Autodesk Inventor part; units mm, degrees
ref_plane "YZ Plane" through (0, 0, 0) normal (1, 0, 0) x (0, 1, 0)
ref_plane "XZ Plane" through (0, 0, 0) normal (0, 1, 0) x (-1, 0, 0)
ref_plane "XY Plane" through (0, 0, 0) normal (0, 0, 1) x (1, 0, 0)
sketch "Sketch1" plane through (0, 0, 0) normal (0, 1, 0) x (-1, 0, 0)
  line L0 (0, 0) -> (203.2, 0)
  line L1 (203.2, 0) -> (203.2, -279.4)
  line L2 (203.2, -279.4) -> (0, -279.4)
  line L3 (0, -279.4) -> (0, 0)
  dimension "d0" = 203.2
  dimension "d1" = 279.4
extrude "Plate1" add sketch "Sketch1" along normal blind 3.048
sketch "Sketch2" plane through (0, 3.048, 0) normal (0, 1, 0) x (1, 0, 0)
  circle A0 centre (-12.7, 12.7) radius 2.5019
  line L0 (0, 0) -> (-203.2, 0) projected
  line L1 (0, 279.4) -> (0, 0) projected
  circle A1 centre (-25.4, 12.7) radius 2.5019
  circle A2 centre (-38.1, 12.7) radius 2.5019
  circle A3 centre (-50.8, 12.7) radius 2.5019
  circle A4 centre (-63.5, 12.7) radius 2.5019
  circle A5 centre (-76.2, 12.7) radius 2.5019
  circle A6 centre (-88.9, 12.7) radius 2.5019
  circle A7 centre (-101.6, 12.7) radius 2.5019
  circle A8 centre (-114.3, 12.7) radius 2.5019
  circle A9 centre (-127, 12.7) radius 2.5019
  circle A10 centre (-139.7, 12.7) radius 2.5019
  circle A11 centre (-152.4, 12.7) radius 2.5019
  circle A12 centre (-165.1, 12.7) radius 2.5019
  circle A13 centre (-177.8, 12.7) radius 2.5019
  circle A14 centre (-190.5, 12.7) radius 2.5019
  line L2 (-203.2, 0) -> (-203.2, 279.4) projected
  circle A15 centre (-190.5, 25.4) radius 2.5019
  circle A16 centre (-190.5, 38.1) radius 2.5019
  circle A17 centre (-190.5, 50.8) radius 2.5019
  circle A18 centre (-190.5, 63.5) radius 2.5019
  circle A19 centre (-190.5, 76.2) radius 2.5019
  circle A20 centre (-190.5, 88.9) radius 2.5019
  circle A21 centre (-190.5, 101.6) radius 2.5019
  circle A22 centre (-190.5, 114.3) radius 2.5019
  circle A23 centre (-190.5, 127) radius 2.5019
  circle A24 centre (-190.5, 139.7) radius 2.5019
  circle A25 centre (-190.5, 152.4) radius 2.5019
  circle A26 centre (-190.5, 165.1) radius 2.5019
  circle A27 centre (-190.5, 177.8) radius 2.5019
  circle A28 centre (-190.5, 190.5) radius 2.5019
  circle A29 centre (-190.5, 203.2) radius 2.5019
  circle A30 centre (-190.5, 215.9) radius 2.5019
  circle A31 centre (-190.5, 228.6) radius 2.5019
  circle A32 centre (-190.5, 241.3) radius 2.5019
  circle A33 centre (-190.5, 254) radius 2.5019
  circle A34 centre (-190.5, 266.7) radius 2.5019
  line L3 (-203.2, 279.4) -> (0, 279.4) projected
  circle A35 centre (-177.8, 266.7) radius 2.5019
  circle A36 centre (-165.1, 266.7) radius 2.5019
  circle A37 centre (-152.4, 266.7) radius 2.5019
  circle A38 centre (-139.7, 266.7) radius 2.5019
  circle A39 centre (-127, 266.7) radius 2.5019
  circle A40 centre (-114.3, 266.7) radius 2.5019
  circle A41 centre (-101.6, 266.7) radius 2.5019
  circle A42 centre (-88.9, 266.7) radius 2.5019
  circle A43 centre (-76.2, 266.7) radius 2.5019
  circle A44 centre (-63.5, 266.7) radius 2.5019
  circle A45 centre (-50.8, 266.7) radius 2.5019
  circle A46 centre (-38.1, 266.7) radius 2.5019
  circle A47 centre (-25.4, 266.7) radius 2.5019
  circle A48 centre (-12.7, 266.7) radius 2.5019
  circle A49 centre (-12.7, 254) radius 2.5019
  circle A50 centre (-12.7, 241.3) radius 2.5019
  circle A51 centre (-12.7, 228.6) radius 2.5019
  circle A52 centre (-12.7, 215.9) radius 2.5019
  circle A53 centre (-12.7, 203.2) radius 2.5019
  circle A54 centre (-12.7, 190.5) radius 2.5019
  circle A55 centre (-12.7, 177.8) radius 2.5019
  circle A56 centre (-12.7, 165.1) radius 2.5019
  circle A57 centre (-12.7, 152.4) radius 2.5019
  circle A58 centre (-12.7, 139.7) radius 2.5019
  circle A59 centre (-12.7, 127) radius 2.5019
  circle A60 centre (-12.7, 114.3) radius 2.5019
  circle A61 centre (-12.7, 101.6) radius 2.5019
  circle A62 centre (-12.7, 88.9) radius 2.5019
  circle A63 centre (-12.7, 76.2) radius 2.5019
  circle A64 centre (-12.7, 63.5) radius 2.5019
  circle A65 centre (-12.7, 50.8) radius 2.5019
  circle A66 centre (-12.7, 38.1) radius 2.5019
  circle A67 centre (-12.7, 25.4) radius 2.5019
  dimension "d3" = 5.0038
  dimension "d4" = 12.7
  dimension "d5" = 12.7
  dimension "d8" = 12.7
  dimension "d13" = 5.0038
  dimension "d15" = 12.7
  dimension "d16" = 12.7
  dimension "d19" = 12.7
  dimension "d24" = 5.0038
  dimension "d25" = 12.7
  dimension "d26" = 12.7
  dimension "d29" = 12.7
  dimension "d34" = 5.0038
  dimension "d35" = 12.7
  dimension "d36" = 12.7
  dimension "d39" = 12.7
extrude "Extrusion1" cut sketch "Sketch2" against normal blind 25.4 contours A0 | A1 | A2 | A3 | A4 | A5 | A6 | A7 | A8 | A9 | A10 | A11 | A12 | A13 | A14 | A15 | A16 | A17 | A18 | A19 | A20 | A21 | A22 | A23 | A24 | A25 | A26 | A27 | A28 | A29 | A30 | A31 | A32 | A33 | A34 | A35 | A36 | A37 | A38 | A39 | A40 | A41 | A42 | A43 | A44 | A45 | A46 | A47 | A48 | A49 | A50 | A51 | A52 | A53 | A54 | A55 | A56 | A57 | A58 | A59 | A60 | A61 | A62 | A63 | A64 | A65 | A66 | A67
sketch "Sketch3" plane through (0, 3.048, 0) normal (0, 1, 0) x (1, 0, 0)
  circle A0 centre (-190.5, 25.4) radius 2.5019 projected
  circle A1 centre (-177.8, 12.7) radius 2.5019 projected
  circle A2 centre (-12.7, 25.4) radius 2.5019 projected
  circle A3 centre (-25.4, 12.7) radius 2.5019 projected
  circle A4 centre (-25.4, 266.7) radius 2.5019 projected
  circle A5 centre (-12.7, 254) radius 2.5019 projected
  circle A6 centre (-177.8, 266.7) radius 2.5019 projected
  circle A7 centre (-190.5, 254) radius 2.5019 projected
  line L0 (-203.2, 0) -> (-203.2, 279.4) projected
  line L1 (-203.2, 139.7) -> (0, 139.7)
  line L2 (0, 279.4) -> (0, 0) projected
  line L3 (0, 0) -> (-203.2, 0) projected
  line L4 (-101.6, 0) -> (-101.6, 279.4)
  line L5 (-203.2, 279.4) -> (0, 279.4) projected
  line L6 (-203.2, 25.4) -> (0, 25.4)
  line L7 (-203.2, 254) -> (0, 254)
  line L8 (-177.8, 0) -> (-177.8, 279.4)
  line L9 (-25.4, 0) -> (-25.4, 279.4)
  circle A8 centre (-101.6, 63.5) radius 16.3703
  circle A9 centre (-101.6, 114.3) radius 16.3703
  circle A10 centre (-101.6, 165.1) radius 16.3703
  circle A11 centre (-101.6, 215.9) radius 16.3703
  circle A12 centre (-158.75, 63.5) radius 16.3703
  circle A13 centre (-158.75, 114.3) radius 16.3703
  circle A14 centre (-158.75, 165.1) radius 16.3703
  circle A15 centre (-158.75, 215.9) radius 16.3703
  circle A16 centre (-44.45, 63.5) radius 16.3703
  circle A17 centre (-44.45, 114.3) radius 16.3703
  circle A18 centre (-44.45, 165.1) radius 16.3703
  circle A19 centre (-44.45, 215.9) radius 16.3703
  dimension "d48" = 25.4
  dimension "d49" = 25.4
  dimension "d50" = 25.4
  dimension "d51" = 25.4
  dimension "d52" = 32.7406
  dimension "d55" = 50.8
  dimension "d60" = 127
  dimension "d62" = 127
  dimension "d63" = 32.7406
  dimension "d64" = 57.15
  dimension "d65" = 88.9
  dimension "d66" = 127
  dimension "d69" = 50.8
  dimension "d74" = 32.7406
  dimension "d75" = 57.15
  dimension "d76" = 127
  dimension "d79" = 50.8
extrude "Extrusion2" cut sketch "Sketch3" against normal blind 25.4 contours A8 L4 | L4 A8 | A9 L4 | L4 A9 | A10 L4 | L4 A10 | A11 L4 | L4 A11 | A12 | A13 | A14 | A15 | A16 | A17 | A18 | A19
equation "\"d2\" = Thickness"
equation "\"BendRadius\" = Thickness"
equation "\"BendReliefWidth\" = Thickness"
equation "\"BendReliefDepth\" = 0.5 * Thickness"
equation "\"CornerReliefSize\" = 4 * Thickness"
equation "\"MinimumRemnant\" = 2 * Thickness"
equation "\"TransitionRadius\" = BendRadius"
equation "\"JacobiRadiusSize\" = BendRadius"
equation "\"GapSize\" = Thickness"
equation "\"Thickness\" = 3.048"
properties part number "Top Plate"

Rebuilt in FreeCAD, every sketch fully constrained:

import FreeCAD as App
import Part
import Sketcher
Q = App.Units.Quantity


def add_polygon(sketch, points):
    """Adds a closed chain of lines whose ends are joined by coincident constraints."""
    first, n = sketch.GeometryCount, len(points)
    for a, b in zip(points, points[1:] + points[:1]):
        sketch.addGeometry(Part.LineSegment(App.Vector(*a, 0), App.Vector(*b, 0)), False)
    for i in range(n):
        sketch.addConstraint(Sketcher.Constraint("Coincident", first + i, 2, first + (i + 1) % n, 1))

doc = App.newDocument("Part")
body = doc.addObject("PartDesign::Body", "Body")

sketch1 = body.newObject("Sketcher::SketchObject", "Sketch")
sketch1.AttachmentSupport = (doc.getObject("XZ_Plane"), [""])
sketch1.MapMode = "FlatFace"
add_polygon(sketch1, [(-203, 0), (0, 0), (0, -279), (-203, -279)])
sketch1.addConstraint([
    Sketcher.Constraint("Horizontal", 0),
    Sketcher.Constraint("Vertical", 1),
    Sketcher.Constraint("Horizontal", 2),
    Sketcher.Constraint("Vertical", 3),
    Sketcher.Constraint("Coincident", 0, 2, -1, 1),
    Sketcher.Constraint("DistanceX", 0, 1, 0, 2, Q("8 in")),
    Sketcher.Constraint("DistanceY", 1, 2, 1, 1, Q("11 in")),
])
pad1 = body.newObject("PartDesign::Pad", "Pad")
pad1.Profile = sketch1
pad1.Length = Q("0.12 in")
pad1.Reversed = True

sketch2 = body.newObject("Sketcher::SketchObject", "Sketch001")
sketch2.AttachmentSupport = (doc.getObject("XZ_Plane"), [""])
sketch2.MapMode = "FlatFace"
sketch2.AttachmentOffset = App.Placement(App.Vector(0, 0, -0.12 * 25.4), App.Rotation())
sketch2.addGeometry([
    Part.Circle(App.Vector(-12.7, -12.7, 0), App.Vector(0, 0, 1), 2.5),
    Part.Circle(App.Vector(-25.4, -12.7, 0), App.Vector(0, 0, 1), 2.5),
    Part.Circle(App.Vector(-38.1, -12.7, 0), App.Vector(0, 0, 1), 2.5),
    Part.Circle(App.Vector(-50.8, -12.7, 0), App.Vector(0, 0, 1), 2.5),
    Part.Circle(App.Vector(-63.5, -12.7, 0), App.Vector(0, 0, 1), 2.5),
    Part.Circle(App.Vector(-76.2, -12.7, 0), App.Vector(0, 0, 1), 2.5),
    Part.Circle(App.Vector(-88.9, -12.7, 0), App.Vector(0, 0, 1), 2.5),
    Part.Circle(App.Vector(-101.6, -12.7, 0), App.Vector(0, 0, 1), 2.5),
    Part.Circle(App.Vector(-114.3, -12.7, 0), App.Vector(0, 0, 1), 2.5),
    Part.Circle(App.Vector(-127, -12.7, 0), App.Vector(0, 0, 1), 2.5),
    Part.Circle(App.Vector(-139.7, -12.7, 0), App.Vector(0, 0, 1), 2.5),
    Part.Circle(App.Vector(-152.4, -12.7, 0), App.Vector(0, 0, 1), 2.5),
    Part.Circle(App.Vector(-165.1, -12.7, 0), App.Vector(0, 0, 1), 2.5),
    Part.Circle(App.Vector(-177.8, -12.7, 0), App.Vector(0, 0, 1), 2.5),
    Part.Circle(App.Vector(-190.5, -12.7, 0), App.Vector(0, 0, 1), 2.5),
    Part.Circle(App.Vector(-190.5, -25.4, 0), App.Vector(0, 0, 1), 2.5),
    Part.Circle(App.Vector(-190.5, -38.1, 0), App.Vector(0, 0, 1), 2.5),
    Part.Circle(App.Vector(-190.5, -50.8, 0), App.Vector(0, 0, 1), 2.5),
    Part.Circle(App.Vector(-190.5, -63.5, 0), App.Vector(0, 0, 1), 2.5),
    Part.Circle(App.Vector(-190.5, -76.2, 0), App.Vector(0, 0, 1), 2.5),
    Part.Circle(App.Vector(-190.5, -88.9, 0), App.Vector(0, 0, 1), 2.5),
    Part.Circle(App.Vector(-190.5, -101.6, 0), App.Vector(0, 0, 1), 2.5),
    Part.Circle(App.Vector(-190.5, -114.3, 0), App.Vector(0, 0, 1), 2.5),
    Part.Circle(App.Vector(-190.5, -127, 0), App.Vector(0, 0, 1), 2.5),
    Part.Circle(App.Vector(-190.5, -139.7, 0), App.Vector(0, 0, 1), 2.5),
    Part.Circle(App.Vector(-190.5, -152.4, 0), App.Vector(0, 0, 1), 2.5),
    Part.Circle(App.Vector(-190.5, -165.1, 0), App.Vector(0, 0, 1), 2.5),
    Part.Circle(App.Vector(-190.5, -177.8, 0), App.Vector(0, 0, 1), 2.5),
    Part.Circle(App.Vector(-190.5, -190.5, 0), App.Vector(0, 0, 1), 2.5),
    Part.Circle(App.Vector(-190.5, -203.2, 0), App.Vector(0, 0, 1), 2.5),
    Part.Circle(App.Vector(-190.5, -215.9, 0), App.Vector(0, 0, 1), 2.5),
    Part.Circle(App.Vector(-190.5, -228.6, 0), App.Vector(0, 0, 1), 2.5),
    Part.Circle(App.Vector(-190.5, -241.3, 0), App.Vector(0, 0, 1), 2.5),
    Part.Circle(App.Vector(-190.5, -254, 0), App.Vector(0, 0, 1), 2.5),
    Part.Circle(App.Vector(-190.5, -266.7, 0), App.Vector(0, 0, 1), 2.5),
    Part.Circle(App.Vector(-177.8, -266.7, 0), App.Vector(0, 0, 1), 2.5),
    Part.Circle(App.Vector(-165.1, -266.7, 0), App.Vector(0, 0, 1), 2.5),
    Part.Circle(App.Vector(-152.4, -266.7, 0), App.Vector(0, 0, 1), 2.5),
    Part.Circle(App.Vector(-139.7, -266.7, 0), App.Vector(0, 0, 1), 2.5),
    Part.Circle(App.Vector(-127, -266.7, 0), App.Vector(0, 0, 1), 2.5),
    Part.Circle(App.Vector(-114.3, -266.7, 0), App.Vector(0, 0, 1), 2.5),
    Part.Circle(App.Vector(-101.6, -266.7, 0), App.Vector(0, 0, 1), 2.5),
    Part.Circle(App.Vector(-88.9, -266.7, 0), App.Vector(0, 0, 1), 2.5),
    Part.Circle(App.Vector(-76.2, -266.7, 0), App.Vector(0, 0, 1), 2.5),
    Part.Circle(App.Vector(-63.5, -266.7, 0), App.Vector(0, 0, 1), 2.5),
    Part.Circle(App.Vector(-50.8, -266.7, 0), App.Vector(0, 0, 1), 2.5),
    Part.Circle(App.Vector(-38.1, -266.7, 0), App.Vector(0, 0, 1), 2.5),
    Part.Circle(App.Vector(-25.4, -266.7, 0), App.Vector(0, 0, 1), 2.5),
    Part.Circle(App.Vector(-12.7, -266.7, 0), App.Vector(0, 0, 1), 2.5),
    Part.Circle(App.Vector(-12.7, -254, 0), App.Vector(0, 0, 1), 2.5),
    Part.Circle(App.Vector(-12.7, -241.3, 0), App.Vector(0, 0, 1), 2.5),
    Part.Circle(App.Vector(-12.7, -228.6, 0), App.Vector(0, 0, 1), 2.5),
    Part.Circle(App.Vector(-12.7, -215.9, 0), App.Vector(0, 0, 1), 2.5),
    Part.Circle(App.Vector(-12.7, -203.2, 0), App.Vector(0, 0, 1), 2.5),
    Part.Circle(App.Vector(-12.7, -190.5, 0), App.Vector(0, 0, 1), 2.5),
    Part.Circle(App.Vector(-12.7, -177.8, 0), App.Vector(0, 0, 1), 2.5),
    Part.Circle(App.Vector(-12.7, -165.1, 0), App.Vector(0, 0, 1), 2.5),
    Part.Circle(App.Vector(-12.7, -152.4, 0), App.Vector(0, 0, 1), 2.5),
    Part.Circle(App.Vector(-12.7, -139.7, 0), App.Vector(0, 0, 1), 2.5),
    Part.Circle(App.Vector(-12.7, -127, 0), App.Vector(0, 0, 1), 2.5),
    Part.Circle(App.Vector(-12.7, -114.3, 0), App.Vector(0, 0, 1), 2.5),
    Part.Circle(App.Vector(-12.7, -101.6, 0), App.Vector(0, 0, 1), 2.5),
    Part.Circle(App.Vector(-12.7, -88.9, 0), App.Vector(0, 0, 1), 2.5),
    Part.Circle(App.Vector(-12.7, -76.2, 0), App.Vector(0, 0, 1), 2.5),
    Part.Circle(App.Vector(-12.7, -63.5, 0), App.Vector(0, 0, 1), 2.5),
    Part.Circle(App.Vector(-12.7, -50.8, 0), App.Vector(0, 0, 1), 2.5),
    Part.Circle(App.Vector(-12.7, -38.1, 0), App.Vector(0, 0, 1), 2.5),
    Part.Circle(App.Vector(-12.7, -25.4, 0), App.Vector(0, 0, 1), 2.5),
], False)
sketch2.addConstraint([
    Sketcher.Constraint("Equal", 0, 1),
    Sketcher.Constraint("Equal", 1, 2),
    Sketcher.Constraint("Equal", 2, 3),
    Sketcher.Constraint("Equal", 3, 4),
    Sketcher.Constraint("Equal", 4, 5),
    Sketcher.Constraint("Equal", 5, 6),
    Sketcher.Constraint("Equal", 6, 7),
    Sketcher.Constraint("Equal", 7, 8),
    Sketcher.Constraint("Equal", 8, 9),
    Sketcher.Constraint("Equal", 9, 10),
    Sketcher.Constraint("Equal", 10, 11),
    Sketcher.Constraint("Equal", 11, 12),
    Sketcher.Constraint("Equal", 12, 13),
    Sketcher.Constraint("Equal", 13, 14),
    Sketcher.Constraint("Equal", 14, 15),
    Sketcher.Constraint("Equal", 15, 16),
    Sketcher.Constraint("Equal", 16, 17),
    Sketcher.Constraint("Equal", 17, 18),
    Sketcher.Constraint("Equal", 18, 19),
    Sketcher.Constraint("Equal", 19, 20),
    Sketcher.Constraint("Equal", 20, 21),
    Sketcher.Constraint("Equal", 21, 22),
    Sketcher.Constraint("Equal", 22, 23),
    Sketcher.Constraint("Equal", 23, 24),
    Sketcher.Constraint("Equal", 24, 25),
    Sketcher.Constraint("Equal", 25, 26),
    Sketcher.Constraint("Equal", 26, 27),
    Sketcher.Constraint("Equal", 27, 28),
    Sketcher.Constraint("Equal", 28, 29),
    Sketcher.Constraint("Equal", 29, 30),
    Sketcher.Constraint("Equal", 30, 31),
    Sketcher.Constraint("Equal", 31, 32),
    Sketcher.Constraint("Equal", 32, 33),
    Sketcher.Constraint("Equal", 33, 34),
    Sketcher.Constraint("Equal", 34, 35),
    Sketcher.Constraint("Equal", 35, 36),
    Sketcher.Constraint("Equal", 36, 37),
    Sketcher.Constraint("Equal", 37, 38),
    Sketcher.Constraint("Equal", 38, 39),
    Sketcher.Constraint("Equal", 39, 40),
    Sketcher.Constraint("Equal", 40, 41),
    Sketcher.Constraint("Equal", 41, 42),
    Sketcher.Constraint("Equal", 42, 43),
    Sketcher.Constraint("Equal", 43, 44),
    Sketcher.Constraint("Equal", 44, 45),
    Sketcher.Constraint("Equal", 45, 46),
    Sketcher.Constraint("Equal", 46, 47),
    Sketcher.Constraint("Equal", 47, 48),
    Sketcher.Constraint("Equal", 48, 49),
    Sketcher.Constraint("Equal", 49, 50),
    Sketcher.Constraint("Equal", 50, 51),
    Sketcher.Constraint("Equal", 51, 52),
    Sketcher.Constraint("Equal", 52, 53),
    Sketcher.Constraint("Equal", 53, 54),
    Sketcher.Constraint("Equal", 54, 55),
    Sketcher.Constraint("Equal", 55, 56),
    Sketcher.Constraint("Equal", 56, 57),
    Sketcher.Constraint("Equal", 57, 58),
    Sketcher.Constraint("Equal", 58, 59),
    Sketcher.Constraint("Equal", 59, 60),
    Sketcher.Constraint("Equal", 60, 61),
    Sketcher.Constraint("Equal", 61, 62),
    Sketcher.Constraint("Equal", 62, 63),
    Sketcher.Constraint("Equal", 63, 64),
    Sketcher.Constraint("Equal", 64, 65),
    Sketcher.Constraint("Equal", 65, 66),
    Sketcher.Constraint("Equal", 66, 67),
    Sketcher.Constraint("Horizontal", 0, 3, 1, 3),
    Sketcher.Constraint("Horizontal", 1, 3, 2, 3),
    Sketcher.Constraint("Horizontal", 2, 3, 3, 3),
    Sketcher.Constraint("Horizontal", 3, 3, 4, 3),
    Sketcher.Constraint("Horizontal", 4, 3, 5, 3),
    Sketcher.Constraint("Horizontal", 5, 3, 6, 3),
    Sketcher.Constraint("Horizontal", 6, 3, 7, 3),
    Sketcher.Constraint("Horizontal", 7, 3, 8, 3),
    Sketcher.Constraint("Horizontal", 8, 3, 9, 3),
    Sketcher.Constraint("Horizontal", 9, 3, 10, 3),
    Sketcher.Constraint("Horizontal", 10, 3, 11, 3),
    Sketcher.Constraint("Horizontal", 11, 3, 12, 3),
    Sketcher.Constraint("Horizontal", 12, 3, 13, 3),
    Sketcher.Constraint("Horizontal", 13, 3, 14, 3),
    Sketcher.Constraint("Horizontal", 34, 3, 35, 3),
    Sketcher.Constraint("Horizontal", 35, 3, 36, 3),
    Sketcher.Constraint("Horizontal", 36, 3, 37, 3),
    Sketcher.Constraint("Horizontal", 37, 3, 38, 3),
    Sketcher.Constraint("Horizontal", 38, 3, 39, 3),
    Sketcher.Constraint("Horizontal", 39, 3, 40, 3),
    Sketcher.Constraint("Horizontal", 40, 3, 41, 3),
    Sketcher.Constraint("Horizontal", 41, 3, 42, 3),
    Sketcher.Constraint("Horizontal", 42, 3, 43, 3),
    Sketcher.Constraint("Horizontal", 43, 3, 44, 3),
    Sketcher.Constraint("Horizontal", 44, 3, 45, 3),
    Sketcher.Constraint("Horizontal", 45, 3, 46, 3),
    Sketcher.Constraint("Horizontal", 46, 3, 47, 3),
    Sketcher.Constraint("Horizontal", 47, 3, 48, 3),
    Sketcher.Constraint("Horizontal", 33, 3, 49, 3),
    Sketcher.Constraint("Horizontal", 32, 3, 50, 3),
    Sketcher.Constraint("Horizontal", 31, 3, 51, 3),
    Sketcher.Constraint("Horizontal", 30, 3, 52, 3),
    Sketcher.Constraint("Horizontal", 29, 3, 53, 3),
    Sketcher.Constraint("Horizontal", 28, 3, 54, 3),
    Sketcher.Constraint("Horizontal", 27, 3, 55, 3),
    Sketcher.Constraint("Horizontal", 26, 3, 56, 3),
    Sketcher.Constraint("Horizontal", 25, 3, 57, 3),
    Sketcher.Constraint("Horizontal", 24, 3, 58, 3),
    Sketcher.Constraint("Horizontal", 23, 3, 59, 3),
    Sketcher.Constraint("Horizontal", 22, 3, 60, 3),
    Sketcher.Constraint("Horizontal", 21, 3, 61, 3),
    Sketcher.Constraint("Horizontal", 20, 3, 62, 3),
    Sketcher.Constraint("Horizontal", 19, 3, 63, 3),
    Sketcher.Constraint("Horizontal", 18, 3, 64, 3),
    Sketcher.Constraint("Horizontal", 17, 3, 65, 3),
    Sketcher.Constraint("Horizontal", 16, 3, 66, 3),
    Sketcher.Constraint("Horizontal", 15, 3, 67, 3),
    Sketcher.Constraint("Vertical", 14, 3, 15, 3),
    Sketcher.Constraint("Vertical", 15, 3, 16, 3),
    Sketcher.Constraint("Vertical", 16, 3, 17, 3),
    Sketcher.Constraint("Vertical", 17, 3, 18, 3),
    Sketcher.Constraint("Vertical", 18, 3, 19, 3),
    Sketcher.Constraint("Vertical", 19, 3, 20, 3),
    Sketcher.Constraint("Vertical", 20, 3, 21, 3),
    Sketcher.Constraint("Vertical", 21, 3, 22, 3),
    Sketcher.Constraint("Vertical", 22, 3, 23, 3),
    Sketcher.Constraint("Vertical", 23, 3, 24, 3),
    Sketcher.Constraint("Vertical", 24, 3, 25, 3),
    Sketcher.Constraint("Vertical", 25, 3, 26, 3),
    Sketcher.Constraint("Vertical", 26, 3, 27, 3),
    Sketcher.Constraint("Vertical", 27, 3, 28, 3),
    Sketcher.Constraint("Vertical", 28, 3, 29, 3),
    Sketcher.Constraint("Vertical", 29, 3, 30, 3),
    Sketcher.Constraint("Vertical", 30, 3, 31, 3),
    Sketcher.Constraint("Vertical", 31, 3, 32, 3),
    Sketcher.Constraint("Vertical", 32, 3, 33, 3),
    Sketcher.Constraint("Vertical", 33, 3, 34, 3),
    Sketcher.Constraint("Vertical", 13, 3, 35, 3),
    Sketcher.Constraint("Vertical", 12, 3, 36, 3),
    Sketcher.Constraint("Vertical", 11, 3, 37, 3),
    Sketcher.Constraint("Vertical", 10, 3, 38, 3),
    Sketcher.Constraint("Vertical", 9, 3, 39, 3),
    Sketcher.Constraint("Vertical", 8, 3, 40, 3),
    Sketcher.Constraint("Vertical", 7, 3, 41, 3),
    Sketcher.Constraint("Vertical", 6, 3, 42, 3),
    Sketcher.Constraint("Vertical", 5, 3, 43, 3),
    Sketcher.Constraint("Vertical", 4, 3, 44, 3),
    Sketcher.Constraint("Vertical", 3, 3, 45, 3),
    Sketcher.Constraint("Vertical", 2, 3, 46, 3),
    Sketcher.Constraint("Vertical", 1, 3, 47, 3),
    Sketcher.Constraint("Vertical", 0, 3, 48, 3),
    Sketcher.Constraint("Vertical", 48, 3, 49, 3),
    Sketcher.Constraint("Vertical", 49, 3, 50, 3),
    Sketcher.Constraint("Vertical", 50, 3, 51, 3),
    Sketcher.Constraint("Vertical", 51, 3, 52, 3),
    Sketcher.Constraint("Vertical", 52, 3, 53, 3),
    Sketcher.Constraint("Vertical", 53, 3, 54, 3),
    Sketcher.Constraint("Vertical", 54, 3, 55, 3),
    Sketcher.Constraint("Vertical", 55, 3, 56, 3),
    Sketcher.Constraint("Vertical", 56, 3, 57, 3),
    Sketcher.Constraint("Vertical", 57, 3, 58, 3),
    Sketcher.Constraint("Vertical", 58, 3, 59, 3),
    Sketcher.Constraint("Vertical", 59, 3, 60, 3),
    Sketcher.Constraint("Vertical", 60, 3, 61, 3),
    Sketcher.Constraint("Vertical", 61, 3, 62, 3),
    Sketcher.Constraint("Vertical", 62, 3, 63, 3),
    Sketcher.Constraint("Vertical", 63, 3, 64, 3),
    Sketcher.Constraint("Vertical", 64, 3, 65, 3),
    Sketcher.Constraint("Vertical", 65, 3, 66, 3),
    Sketcher.Constraint("Vertical", 66, 3, 67, 3),
    Sketcher.Constraint("Diameter", 0, Q("0.197 in")),
    Sketcher.Constraint("DistanceX", 1, 3, -1, 1, Q("1 in")),
    Sketcher.Constraint("DistanceY", 15, 3, -1, 1, Q("1 in")),
    Sketcher.Constraint("DistanceX", 0, 3, -1, 1, Q("0.5 in")),
    Sketcher.Constraint("DistanceY", 0, 3, -1, 1, Q("0.5 in")),
    Sketcher.Constraint("DistanceX", 3, 3, -1, 1, Q("2 in")),
    Sketcher.Constraint("DistanceX", 5, 3, -1, 1, Q("3 in")),
    Sketcher.Constraint("DistanceX", 7, 3, -1, 1, Q("4 in")),
    Sketcher.Constraint("DistanceX", 9, 3, -1, 1, Q("5 in")),
    Sketcher.Constraint("DistanceX", 11, 3, -1, 1, Q("6 in")),
    Sketcher.Constraint("DistanceX", 13, 3, -1, 1, Q("7 in")),
    Sketcher.Constraint("DistanceY", 17, 3, -1, 1, Q("2 in")),
    Sketcher.Constraint("DistanceY", 19, 3, -1, 1, Q("3 in")),
    Sketcher.Constraint("DistanceY", 21, 3, -1, 1, Q("4 in")),
    Sketcher.Constraint("DistanceY", 23, 3, -1, 1, Q("5 in")),
    Sketcher.Constraint("DistanceY", 25, 3, -1, 1, Q("6 in")),
    Sketcher.Constraint("DistanceY", 27, 3, -1, 1, Q("7 in")),
    Sketcher.Constraint("DistanceY", 29, 3, -1, 1, Q("8 in")),
    Sketcher.Constraint("DistanceY", 31, 3, -1, 1, Q("9 in")),
    Sketcher.Constraint("DistanceY", 33, 3, -1, 1, Q("10 in")),
    Sketcher.Constraint("DistanceX", 2, 3, -1, 1, Q("1.5 in")),
    Sketcher.Constraint("DistanceX", 4, 3, -1, 1, Q("2.5 in")),
    Sketcher.Constraint("DistanceX", 6, 3, -1, 1, Q("3.5 in")),
    Sketcher.Constraint("DistanceX", 8, 3, -1, 1, Q("4.5 in")),
    Sketcher.Constraint("DistanceX", 10, 3, -1, 1, Q("5.5 in")),
    Sketcher.Constraint("DistanceX", 12, 3, -1, 1, Q("6.5 in")),
    Sketcher.Constraint("DistanceX", 14, 3, -1, 1, Q("7.5 in")),
    Sketcher.Constraint("DistanceY", 16, 3, -1, 1, Q("1.5 in")),
    Sketcher.Constraint("DistanceY", 18, 3, -1, 1, Q("2.5 in")),
    Sketcher.Constraint("DistanceY", 20, 3, -1, 1, Q("3.5 in")),
    Sketcher.Constraint("DistanceY", 22, 3, -1, 1, Q("4.5 in")),
    Sketcher.Constraint("DistanceY", 24, 3, -1, 1, Q("5.5 in")),
    Sketcher.Constraint("DistanceY", 26, 3, -1, 1, Q("6.5 in")),
    Sketcher.Constraint("DistanceY", 28, 3, -1, 1, Q("7.5 in")),
    Sketcher.Constraint("DistanceY", 30, 3, -1, 1, Q("8.5 in")),
    Sketcher.Constraint("DistanceY", 32, 3, -1, 1, Q("9.5 in")),
    Sketcher.Constraint("DistanceY", 34, 3, -1, 1, Q("10.5 in")),
])
pocket1 = body.newObject("PartDesign::Pocket", "Pocket")
pocket1.Profile = sketch2
pocket1.Length = Q("1 in")
pocket1.Reversed = True

sketch3 = body.newObject("Sketcher::SketchObject", "Sketch002")
sketch3.AttachmentSupport = (doc.getObject("XZ_Plane"), [""])
sketch3.MapMode = "FlatFace"
sketch3.AttachmentOffset = App.Placement(App.Vector(0, 0, -0.12 * 25.4), App.Rotation())
sketch3.addGeometry([
    Part.Circle(App.Vector(-102, -64, 0), App.Vector(0, 0, 1), 16),
    Part.Circle(App.Vector(-102, -114, 0), App.Vector(0, 0, 1), 16),
    Part.Circle(App.Vector(-102, -165, 0), App.Vector(0, 0, 1), 16),
    Part.Circle(App.Vector(-102, -216, 0), App.Vector(0, 0, 1), 16),
    Part.Circle(App.Vector(-159, -64, 0), App.Vector(0, 0, 1), 16),
    Part.Circle(App.Vector(-159, -114, 0), App.Vector(0, 0, 1), 16),
    Part.Circle(App.Vector(-159, -165, 0), App.Vector(0, 0, 1), 16),
    Part.Circle(App.Vector(-159, -216, 0), App.Vector(0, 0, 1), 16),
    Part.Circle(App.Vector(-44, -64, 0), App.Vector(0, 0, 1), 16),
    Part.Circle(App.Vector(-44, -114, 0), App.Vector(0, 0, 1), 16),
    Part.Circle(App.Vector(-44, -165, 0), App.Vector(0, 0, 1), 16),
    Part.Circle(App.Vector(-44, -216, 0), App.Vector(0, 0, 1), 16),
], False)
sketch3.addConstraint([
    Sketcher.Constraint("Equal", 0, 1),
    Sketcher.Constraint("Equal", 1, 2),
    Sketcher.Constraint("Equal", 2, 3),
    Sketcher.Constraint("Equal", 3, 4),
    Sketcher.Constraint("Equal", 4, 5),
    Sketcher.Constraint("Equal", 5, 6),
    Sketcher.Constraint("Equal", 6, 7),
    Sketcher.Constraint("Equal", 7, 8),
    Sketcher.Constraint("Equal", 8, 9),
    Sketcher.Constraint("Equal", 9, 10),
    Sketcher.Constraint("Equal", 10, 11),
    Sketcher.Constraint("Horizontal", 0, 3, 4, 3),
    Sketcher.Constraint("Horizontal", 1, 3, 5, 3),
    Sketcher.Constraint("Horizontal", 2, 3, 6, 3),
    Sketcher.Constraint("Horizontal", 3, 3, 7, 3),
    Sketcher.Constraint("Horizontal", 4, 3, 8, 3),
    Sketcher.Constraint("Horizontal", 5, 3, 9, 3),
    Sketcher.Constraint("Horizontal", 6, 3, 10, 3),
    Sketcher.Constraint("Horizontal", 7, 3, 11, 3),
    Sketcher.Constraint("Vertical", 0, 3, 1, 3),
    Sketcher.Constraint("Vertical", 1, 3, 2, 3),
    Sketcher.Constraint("Vertical", 2, 3, 3, 3),
    Sketcher.Constraint("Vertical", 4, 3, 5, 3),
    Sketcher.Constraint("Vertical", 5, 3, 6, 3),
    Sketcher.Constraint("Vertical", 6, 3, 7, 3),
    Sketcher.Constraint("Vertical", 8, 3, 9, 3),
    Sketcher.Constraint("Vertical", 9, 3, 10, 3),
    Sketcher.Constraint("Vertical", 10, 3, 11, 3),
    Sketcher.Constraint("Diameter", 0, Q("1.289 in")),
    Sketcher.Constraint("DistanceY", 1, 3, 0, 3, Q("2 in")),
    Sketcher.Constraint("DistanceY", 2, 3, 1, 3, Q("2 in")),
    Sketcher.Constraint("DistanceY", 3, 3, 2, 3, Q("2 in")),
    Sketcher.Constraint("DistanceX", 4, 3, 0, 3, Q("2.25 in")),
    Sketcher.Constraint("DistanceX", 0, 3, 8, 3, Q("2.25 in")),
    Sketcher.Constraint("DistanceX", 0, 3, -1, 1, Q("4 in")),
    Sketcher.Constraint("DistanceY", 0, 3, -1, 1, Q("2.5 in")),
])
pocket2 = body.newObject("PartDesign::Pocket", "Pocket001")
pocket2.Profile = sketch3
pocket2.Length = Q("1 in")
pocket2.Reversed = True

doc.recompute()
